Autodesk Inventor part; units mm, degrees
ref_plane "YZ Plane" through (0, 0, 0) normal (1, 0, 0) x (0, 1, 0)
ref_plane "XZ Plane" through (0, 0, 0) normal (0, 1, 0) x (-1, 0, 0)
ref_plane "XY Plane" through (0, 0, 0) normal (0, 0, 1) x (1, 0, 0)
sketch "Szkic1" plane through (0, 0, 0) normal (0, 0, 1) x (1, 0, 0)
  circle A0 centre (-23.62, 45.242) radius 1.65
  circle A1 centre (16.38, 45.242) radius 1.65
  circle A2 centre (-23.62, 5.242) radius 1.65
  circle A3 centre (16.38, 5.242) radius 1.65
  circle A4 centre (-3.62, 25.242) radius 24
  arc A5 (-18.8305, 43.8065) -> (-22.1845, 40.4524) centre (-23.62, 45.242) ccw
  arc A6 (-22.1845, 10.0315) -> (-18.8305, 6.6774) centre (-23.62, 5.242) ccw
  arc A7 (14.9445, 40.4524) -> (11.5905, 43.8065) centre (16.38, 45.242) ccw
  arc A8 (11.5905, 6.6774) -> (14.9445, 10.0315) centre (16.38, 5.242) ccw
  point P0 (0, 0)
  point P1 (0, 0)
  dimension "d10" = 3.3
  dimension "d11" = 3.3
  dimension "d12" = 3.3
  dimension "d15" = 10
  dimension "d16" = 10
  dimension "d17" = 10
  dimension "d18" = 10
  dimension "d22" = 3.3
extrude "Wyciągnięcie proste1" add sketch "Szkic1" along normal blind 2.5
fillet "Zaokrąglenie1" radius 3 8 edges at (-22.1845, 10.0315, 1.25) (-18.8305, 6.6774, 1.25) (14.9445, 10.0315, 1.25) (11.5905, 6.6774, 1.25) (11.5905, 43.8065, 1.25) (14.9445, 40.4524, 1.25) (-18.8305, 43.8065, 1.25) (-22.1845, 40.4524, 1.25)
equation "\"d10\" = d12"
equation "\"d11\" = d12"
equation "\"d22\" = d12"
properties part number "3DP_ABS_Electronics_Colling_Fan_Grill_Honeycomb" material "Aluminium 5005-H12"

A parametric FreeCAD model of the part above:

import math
import FreeCAD as App
import Part
import Sketcher

V = App.Vector


def edges_at(feature, points):
    """Names of the edges that pass closest to the given points."""
    edges = feature.Shape.Edges
    near = lambda p: min(range(len(edges)), key=lambda i: edges[i].distToShape(Part.Vertex(*p))[0])
    return sorted({f"Edge{near(p) + 1}" for p in points})

doc = App.newDocument("Part")
body = doc.addObject("PartDesign::Body", "Body")

sketch1 = body.newObject("Sketcher::SketchObject", "Sketch")
sketch1.AttachmentSupport = (doc.getObject("XY_Plane"), [""])
sketch1.MapMode = "FlatFace"
sketch1.addGeometry([
    Part.ArcOfCircle(Part.Circle(V(-3.6, 25.2, 0), V(0, 0, 1), 24), math.radians(-39), math.radians(39)),
    Part.ArcOfCircle(Part.Circle(V(16.4, 45.2, 0), V(0, 0, 1), 5), math.radians(-107), math.radians(197)),
    Part.ArcOfCircle(Part.Circle(V(-3.6, 25.2, 0), V(0, 0, 1), 24), math.radians(51), math.radians(129)),
    Part.ArcOfCircle(Part.Circle(V(-23.6, 45.2, 0), V(0, 0, 1), 5), math.radians(-17), math.radians(287)),
    Part.ArcOfCircle(Part.Circle(V(-3.6, 25.2, 0), V(0, 0, 1), 24), math.radians(141), math.radians(219)),
    Part.ArcOfCircle(Part.Circle(V(-23.6, 5.2, 0), V(0, 0, 1), 5), math.radians(73), math.radians(377)),
    Part.ArcOfCircle(Part.Circle(V(-3.6, 25.2, 0), V(0, 0, 1), 24), math.radians(-129), math.radians(-51)),
    Part.ArcOfCircle(Part.Circle(V(16.4, 5.2, 0), V(0, 0, 1), 5), math.radians(163), math.radians(467)),
    Part.Circle(V(16.4, 5.2, 0), V(0, 0, 1), 1.6),
    Part.Circle(V(-23.6, 5.2, 0), V(0, 0, 1), 1.6),
    Part.Circle(V(-23.6, 45.2, 0), V(0, 0, 1), 1.6),
    Part.Circle(V(16.4, 45.2, 0), V(0, 0, 1), 1.6),
], False)
sketch1.addConstraint([
    Sketcher.Constraint("Coincident", 0, 2, 1, 1),
    Sketcher.Constraint("Coincident", 1, 2, 2, 1),
    Sketcher.Constraint("Coincident", 2, 2, 3, 1),
    Sketcher.Constraint("Coincident", 3, 2, 4, 1),
    Sketcher.Constraint("Coincident", 4, 2, 5, 1),
    Sketcher.Constraint("Coincident", 5, 2, 6, 1),
    Sketcher.Constraint("Coincident", 6, 2, 7, 1),
    Sketcher.Constraint("Coincident", 7, 2, 0, 1),
    Sketcher.Constraint("Coincident", 2, 3, 0, 3),
    Sketcher.Constraint("Coincident", 4, 3, 0, 3),
    Sketcher.Constraint("Coincident", 6, 3, 0, 3),
    Sketcher.Constraint("Coincident", 8, 3, 7, 3),
    Sketcher.Constraint("Coincident", 9, 3, 5, 3),
    Sketcher.Constraint("Coincident", 10, 3, 3, 3),
    Sketcher.Constraint("Coincident", 11, 3, 1, 3),
    Sketcher.Constraint("Equal", 0, 2),
    Sketcher.Constraint("Equal", 1, 3),
    Sketcher.Constraint("Equal", 2, 4),
    Sketcher.Constraint("Equal", 3, 5),
    Sketcher.Constraint("Equal", 4, 6),
    Sketcher.Constraint("Equal", 5, 7),
    Sketcher.Constraint("Equal", 8, 9),
    Sketcher.Constraint("Equal", 9, 10),
    Sketcher.Constraint("Equal", 10, 11),
    Sketcher.Constraint("Horizontal", 1, 3, 3, 3),
    Sketcher.Constraint("Horizontal", 5, 3, 7, 3),
    Sketcher.Constraint("Horizontal", 1, 2, 2, 2),
    Sketcher.Constraint("Horizontal", 5, 2, 6, 2),
    Sketcher.Constraint("Vertical", 3, 3, 5, 3),
    Sketcher.Constraint("Vertical", 3, 2, 4, 2),
    Sketcher.Constraint("Radius", 1, 5.0),
    Sketcher.Constraint("Diameter", 8, 3.3),
    Sketcher.Constraint("Radius", 0, 24.0),
    Sketcher.Constraint("DistanceX", 0, 3, 1, 3, 20.0),
    Sketcher.Constraint("DistanceY", 0, 3, 1, 3, 20.0),
    Sketcher.Constraint("DistanceX", 0, 3, -1, 1, 3.62),
    Sketcher.Constraint("DistanceY", -1, 1, 0, 3, 25.242),
])
pad1 = body.newObject("PartDesign::Pad", "Pad")
pad1.Profile = sketch1
pad1.Length = 2.5
doc.recompute()

fillet = body.newObject("PartDesign::Fillet", "Fillet")
fillet.Base = (pad1, edges_at(pad1, [
    (-22.184, 10.031, 1.25),
    (-18.831, 6.677, 1.25),
    (14.944, 10.031, 1.25),
    (11.591, 6.677, 1.25),
    (11.591, 43.806, 1.25),
    (14.944, 40.452, 1.25),
    (-18.831, 43.806, 1.25),
    (-22.184, 40.452, 1.25),
]))
fillet.Radius = 3

doc.recompute()
